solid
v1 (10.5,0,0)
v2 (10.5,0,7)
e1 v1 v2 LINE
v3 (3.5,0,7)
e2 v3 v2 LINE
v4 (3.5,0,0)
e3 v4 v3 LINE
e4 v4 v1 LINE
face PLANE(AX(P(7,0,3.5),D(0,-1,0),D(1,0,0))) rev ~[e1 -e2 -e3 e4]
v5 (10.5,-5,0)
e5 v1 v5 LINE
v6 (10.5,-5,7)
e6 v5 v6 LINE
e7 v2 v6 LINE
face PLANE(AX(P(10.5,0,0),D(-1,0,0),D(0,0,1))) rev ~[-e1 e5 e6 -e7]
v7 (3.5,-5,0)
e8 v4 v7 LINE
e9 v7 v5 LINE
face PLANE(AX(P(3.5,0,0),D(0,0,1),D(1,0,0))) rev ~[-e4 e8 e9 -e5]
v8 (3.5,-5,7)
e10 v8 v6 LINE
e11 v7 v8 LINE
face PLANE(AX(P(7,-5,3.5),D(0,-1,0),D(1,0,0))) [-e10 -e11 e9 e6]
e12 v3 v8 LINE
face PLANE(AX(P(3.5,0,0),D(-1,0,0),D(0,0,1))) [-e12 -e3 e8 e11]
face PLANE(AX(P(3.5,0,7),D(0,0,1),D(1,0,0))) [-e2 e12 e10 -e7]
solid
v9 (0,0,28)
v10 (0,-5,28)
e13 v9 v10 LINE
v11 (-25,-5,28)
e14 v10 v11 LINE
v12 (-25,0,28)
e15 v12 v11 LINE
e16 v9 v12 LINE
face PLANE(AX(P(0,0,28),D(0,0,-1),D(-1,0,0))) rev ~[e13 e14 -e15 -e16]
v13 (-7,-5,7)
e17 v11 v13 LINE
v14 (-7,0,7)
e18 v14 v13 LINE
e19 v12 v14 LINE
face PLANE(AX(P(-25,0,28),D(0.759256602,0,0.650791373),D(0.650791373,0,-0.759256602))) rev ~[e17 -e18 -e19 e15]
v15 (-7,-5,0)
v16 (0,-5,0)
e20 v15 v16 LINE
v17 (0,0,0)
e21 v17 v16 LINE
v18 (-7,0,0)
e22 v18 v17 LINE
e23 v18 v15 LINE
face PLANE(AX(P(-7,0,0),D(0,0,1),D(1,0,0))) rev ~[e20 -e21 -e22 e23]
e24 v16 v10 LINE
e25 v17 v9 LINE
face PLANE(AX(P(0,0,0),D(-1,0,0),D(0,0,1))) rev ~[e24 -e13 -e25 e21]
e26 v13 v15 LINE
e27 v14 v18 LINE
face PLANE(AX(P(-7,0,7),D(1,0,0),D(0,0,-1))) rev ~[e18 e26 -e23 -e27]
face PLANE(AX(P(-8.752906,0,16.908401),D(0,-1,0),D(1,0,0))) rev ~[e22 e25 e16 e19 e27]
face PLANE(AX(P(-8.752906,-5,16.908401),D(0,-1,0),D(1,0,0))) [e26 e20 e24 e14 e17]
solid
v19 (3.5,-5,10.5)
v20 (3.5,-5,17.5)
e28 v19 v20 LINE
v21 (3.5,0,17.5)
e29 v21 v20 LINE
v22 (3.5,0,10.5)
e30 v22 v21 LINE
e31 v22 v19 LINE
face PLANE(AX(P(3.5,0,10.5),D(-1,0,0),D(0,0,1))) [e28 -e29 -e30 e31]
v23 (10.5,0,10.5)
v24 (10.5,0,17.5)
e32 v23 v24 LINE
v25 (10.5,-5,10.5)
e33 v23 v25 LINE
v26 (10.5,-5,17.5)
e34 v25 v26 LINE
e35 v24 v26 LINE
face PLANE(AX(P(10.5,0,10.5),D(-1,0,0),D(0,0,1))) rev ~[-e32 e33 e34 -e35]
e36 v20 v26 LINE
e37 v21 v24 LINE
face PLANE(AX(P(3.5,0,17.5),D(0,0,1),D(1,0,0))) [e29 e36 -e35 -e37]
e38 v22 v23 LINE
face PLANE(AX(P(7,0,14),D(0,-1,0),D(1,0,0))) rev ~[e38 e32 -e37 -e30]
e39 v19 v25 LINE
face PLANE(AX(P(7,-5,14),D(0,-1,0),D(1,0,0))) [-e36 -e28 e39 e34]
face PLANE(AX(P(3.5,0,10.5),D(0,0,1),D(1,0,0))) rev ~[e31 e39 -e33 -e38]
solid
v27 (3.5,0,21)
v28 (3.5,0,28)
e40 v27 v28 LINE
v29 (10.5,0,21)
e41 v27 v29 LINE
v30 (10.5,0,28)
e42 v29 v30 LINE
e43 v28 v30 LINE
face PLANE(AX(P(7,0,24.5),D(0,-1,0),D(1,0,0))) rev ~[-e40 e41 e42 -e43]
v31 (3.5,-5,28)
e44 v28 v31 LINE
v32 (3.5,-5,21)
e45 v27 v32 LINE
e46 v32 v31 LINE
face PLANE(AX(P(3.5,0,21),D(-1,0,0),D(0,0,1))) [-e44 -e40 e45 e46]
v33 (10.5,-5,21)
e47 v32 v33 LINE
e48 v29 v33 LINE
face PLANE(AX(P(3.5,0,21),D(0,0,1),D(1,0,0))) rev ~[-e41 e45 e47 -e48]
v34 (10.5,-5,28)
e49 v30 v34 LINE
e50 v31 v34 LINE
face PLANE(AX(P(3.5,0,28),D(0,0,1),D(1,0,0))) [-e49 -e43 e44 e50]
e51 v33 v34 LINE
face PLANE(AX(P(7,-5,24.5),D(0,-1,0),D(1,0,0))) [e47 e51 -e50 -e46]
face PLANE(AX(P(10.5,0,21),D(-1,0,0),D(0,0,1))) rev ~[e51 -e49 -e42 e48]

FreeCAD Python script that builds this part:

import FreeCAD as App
import Part
import Sketcher

V = App.Vector
Q = App.Units.Quantity


def add_polygon(sketch, points):
    """Adds a closed chain of lines whose ends are joined by coincident constraints."""
    first, n = sketch.GeometryCount, len(points)
    for a, b in zip(points, points[1:] + points[:1]):
        sketch.addGeometry(Part.LineSegment(App.Vector(*a, 0), App.Vector(*b, 0)), False)
    for i in range(n):
        sketch.addConstraint(Sketcher.Constraint("Coincident", first + i, 2, first + (i + 1) % n, 1))

doc = App.newDocument("Part")
body = doc.addObject("PartDesign::Body", "Body")
body.AllowCompound = True

# Sketch on XZ plane
sketch1 = body.newObject("Sketcher::SketchObject", "Sketch")
sketch1.AttachmentSupport = (doc.getObject("XZ_Plane"), [""])
sketch1.MapMode = "FlatFace"
add_polygon(sketch1, [(0, 28), (-25, 28), (-7, 7), (-7, 0), (0, 0)])  # lines 0-4
add_polygon(sketch1, [(4, 28), (4, 21), (10, 21), (10, 28)])  # lines 5-8
add_polygon(sketch1, [(4, 18), (4, 10), (10, 10), (10, 18)])  # lines 9-12
add_polygon(sketch1, [(4, 7), (4, 0), (10, 0), (10, 7)])  # lines 13-16
sketch1.addConstraint(Sketcher.Constraint("Horizontal", 0))
sketch1.addConstraint(Sketcher.Constraint("Vertical", 2))
sketch1.addConstraint(Sketcher.Constraint("Horizontal", 3))
sketch1.addConstraint(Sketcher.Constraint("Vertical", 4))
sketch1.addConstraint(Sketcher.Constraint("Vertical", 5))
sketch1.addConstraint(Sketcher.Constraint("Horizontal", 6))
sketch1.addConstraint(Sketcher.Constraint("Vertical", 7))
sketch1.addConstraint(Sketcher.Constraint("Horizontal", 8))
sketch1.addConstraint(Sketcher.Constraint("Vertical", 9))
sketch1.addConstraint(Sketcher.Constraint("Horizontal", 10))
sketch1.addConstraint(Sketcher.Constraint("Vertical", 11))
sketch1.addConstraint(Sketcher.Constraint("Horizontal", 12))
sketch1.addConstraint(Sketcher.Constraint("Vertical", 13))
sketch1.addConstraint(Sketcher.Constraint("Horizontal", 14))
sketch1.addConstraint(Sketcher.Constraint("Vertical", 15))
sketch1.addConstraint(Sketcher.Constraint("Horizontal", 16))
sketch1.addConstraint(Sketcher.Constraint("Coincident", 3, 2, -1, 1))
sketch1.addConstraint(Sketcher.Constraint("PointOnObject", 13, 2, -1))
sketch1.addConstraint(Sketcher.Constraint("Horizontal", 4, 2, 7, 2))
sketch1.addConstraint(Sketcher.Constraint("Horizontal", 1, 2, 15, 2))
sketch1.addConstraint(Sketcher.Constraint("Vertical", 8, 2, 9, 2))
sketch1.addConstraint(Sketcher.Constraint("Vertical", 7, 2, 10, 2))
sketch1.addConstraint(Sketcher.Constraint("Vertical", 12, 2, 13, 2))
sketch1.addConstraint(Sketcher.Constraint("Vertical", 11, 2, 14, 2))
sketch1.addConstraint(Sketcher.Constraint("Equal", 3, 6))
sketch1.addConstraint(Sketcher.Constraint("Equal", 16, 2))
sketch1.addConstraint(Sketcher.Constraint("Equal", 2, 5))
sketch1.addConstraint(Sketcher.Constraint("Equal", 7, 9))
sketch1.addConstraint(Sketcher.Constraint("DistanceX", 0, 2, 0, 1, Q("25 mm")))
sketch1.addConstraint(Sketcher.Constraint("DistanceX", 3, 1, 3, 2, Q("7 mm")))
sketch1.addConstraint(Sketcher.Constraint("DistanceY", 4, 1, 4, 2, Q("28 mm")))
sketch1.addConstraint(Sketcher.Constraint("DistanceX", -1, 1, 5, 2, Q("3.5 mm")))
sketch1.addConstraint(Sketcher.Constraint("DistanceY", -1, 1, 9, 2, Q("10.5 mm")))
pad1 = body.newObject("PartDesign::Pad", "Pad")
pad1.Profile = sketch1
pad1.Length = 5

doc.recompute()
